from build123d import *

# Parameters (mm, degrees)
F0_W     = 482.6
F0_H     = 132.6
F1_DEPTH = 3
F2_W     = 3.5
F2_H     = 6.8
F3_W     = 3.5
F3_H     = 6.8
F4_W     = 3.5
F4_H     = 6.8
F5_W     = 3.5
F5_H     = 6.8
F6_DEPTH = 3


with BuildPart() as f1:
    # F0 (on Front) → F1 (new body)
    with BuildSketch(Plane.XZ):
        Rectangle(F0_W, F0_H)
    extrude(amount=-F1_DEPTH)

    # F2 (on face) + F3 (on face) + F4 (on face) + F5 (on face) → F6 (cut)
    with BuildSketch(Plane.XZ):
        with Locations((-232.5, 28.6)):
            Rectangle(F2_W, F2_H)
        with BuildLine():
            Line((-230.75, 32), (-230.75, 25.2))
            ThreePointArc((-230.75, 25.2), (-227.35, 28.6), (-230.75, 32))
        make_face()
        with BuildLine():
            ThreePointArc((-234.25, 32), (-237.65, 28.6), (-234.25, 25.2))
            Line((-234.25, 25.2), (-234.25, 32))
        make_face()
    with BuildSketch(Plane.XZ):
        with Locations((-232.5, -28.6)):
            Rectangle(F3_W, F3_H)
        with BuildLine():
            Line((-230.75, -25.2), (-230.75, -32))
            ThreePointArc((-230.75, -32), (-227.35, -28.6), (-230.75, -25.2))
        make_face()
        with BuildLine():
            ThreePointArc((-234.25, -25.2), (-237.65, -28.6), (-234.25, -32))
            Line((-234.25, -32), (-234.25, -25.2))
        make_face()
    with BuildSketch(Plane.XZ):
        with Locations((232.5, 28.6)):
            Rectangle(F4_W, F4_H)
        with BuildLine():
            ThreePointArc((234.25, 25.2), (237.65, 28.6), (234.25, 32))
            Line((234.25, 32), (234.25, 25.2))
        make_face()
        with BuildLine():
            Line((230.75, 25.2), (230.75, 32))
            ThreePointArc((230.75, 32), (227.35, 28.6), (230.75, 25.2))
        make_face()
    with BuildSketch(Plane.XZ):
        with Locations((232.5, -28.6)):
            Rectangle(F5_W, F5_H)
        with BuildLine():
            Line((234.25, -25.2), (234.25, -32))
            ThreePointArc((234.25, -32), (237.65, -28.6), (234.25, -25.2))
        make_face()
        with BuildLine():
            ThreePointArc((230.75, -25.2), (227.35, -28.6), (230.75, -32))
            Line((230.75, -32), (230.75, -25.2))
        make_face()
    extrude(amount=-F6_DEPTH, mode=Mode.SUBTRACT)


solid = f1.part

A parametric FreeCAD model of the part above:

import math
import FreeCAD as App
import Part
import Sketcher

V = App.Vector


def add_polygon(sketch, points):
    """Adds a closed chain of lines whose ends are joined by coincident constraints."""
    first, n = sketch.GeometryCount, len(points)
    for a, b in zip(points, points[1:] + points[:1]):
        sketch.addGeometry(Part.LineSegment(App.Vector(*a, 0), App.Vector(*b, 0)), False)
    for i in range(n):
        sketch.addConstraint(Sketcher.Constraint("Coincident", first + i, 2, first + (i + 1) % n, 1))

doc = App.newDocument("Part")
params = doc.addObject("Spreadsheet::Sheet", "Params")
for row, (alias, value) in enumerate([
    ("sketch1_width", "482.6 mm"),
    ("sketch1_height", "132.6 mm"),
    ("pad1_length", "3 mm"),
    ("sketch2_radius", "3.4 mm"),
    ("sketch2_width", "3.5 mm"),
    ("pocket1_length", "3 mm"),
], start=1):
    params.set(f"A{row}", alias)
    params.set(f"B{row}", "=" + value)
    params.setAlias(f"B{row}", alias)

body = doc.addObject("PartDesign::Body", "Body")

# Sketch on XZ plane
sketch1 = body.newObject("Sketcher::SketchObject", "Sketch")
sketch1.AttachmentSupport = (doc.getObject("XZ_Plane"), [""])
sketch1.MapMode = "FlatFace"
add_polygon(sketch1, [(-241.3, 66.3), (-241.3, -66.3), (241.3, -66.3), (241.3, 66.3)])  # lines 0-3
sketch1.addConstraint([
    Sketcher.Constraint("Vertical", 0),
    Sketcher.Constraint("Horizontal", 1),
    Sketcher.Constraint("Vertical", 2),
    Sketcher.Constraint("Horizontal", 3),
    Sketcher.Constraint("Symmetric", 0, 2, 2, 2, -1, 1),
    Sketcher.Constraint("DistanceX", 1, 1, 1, 2, 482.6),
    Sketcher.Constraint("DistanceY", 0, 2, 0, 1, 132.6),
])
sketch1.setExpression("Constraints[9]", "Params.sketch1_width")
sketch1.setExpression("Constraints[10]", "Params.sketch1_height")
pad1 = body.newObject("PartDesign::Pad", "Pad")
pad1.Profile = sketch1
pad1.setExpression("Length", "Params.pad1_length")
pad1.Reversed = True

# Sketch on XZ plane
sketch2 = body.newObject("Sketcher::SketchObject", "Sketch001")
sketch2.AttachmentSupport = (doc.getObject("XZ_Plane"), [""])
sketch2.MapMode = "FlatFace"
sketch2.addGeometry([
    Part.LineSegment(V(-234.25, 25.2, 0), V(-230.75, 25.2, 0)),  # 0
    Part.ArcOfCircle(Part.Circle(V(-230.75, 28.6, 0), V(0, 0, 1), 3.4), math.radians(-90), math.radians(90)),  # 1
    Part.LineSegment(V(-230.75, 32, 0), V(-234.25, 32, 0)),  # 2
    Part.ArcOfCircle(Part.Circle(V(-234.25, 28.6, 0), V(0, 0, 1), 3.4), math.radians(90), math.radians(270)),  # 3
    Part.LineSegment(V(-234.25, -32, 0), V(-230.75, -32, 0)),  # 4
    Part.ArcOfCircle(Part.Circle(V(-230.75, -28.6, 0), V(0, 0, 1), 3.4), math.radians(-90), math.radians(90)),  # 5
    Part.LineSegment(V(-230.75, -25.2, 0), V(-234.25, -25.2, 0)),  # 6
    Part.ArcOfCircle(Part.Circle(V(-234.25, -28.6, 0), V(0, 0, 1), 3.4), math.radians(90), math.radians(270)),  # 7
    Part.LineSegment(V(230.75, 25.2, 0), V(234.25, 25.2, 0)),  # 8
    Part.ArcOfCircle(Part.Circle(V(234.25, 28.6, 0), V(0, 0, 1), 3.4), math.radians(-90), math.radians(90)),  # 9
    Part.LineSegment(V(234.25, 32, 0), V(230.75, 32, 0)),  # 10
    Part.ArcOfCircle(Part.Circle(V(230.75, 28.6, 0), V(0, 0, 1), 3.4), math.radians(90), math.radians(270)),  # 11
    Part.LineSegment(V(230.75, -32, 0), V(234.25, -32, 0)),  # 12
    Part.ArcOfCircle(Part.Circle(V(234.25, -28.6, 0), V(0, 0, 1), 3.4), math.radians(-90), math.radians(90)),  # 13
    Part.LineSegment(V(234.25, -25.2, 0), V(230.75, -25.2, 0)),  # 14
    Part.ArcOfCircle(Part.Circle(V(230.75, -28.6, 0), V(0, 0, 1), 3.4), math.radians(90), math.radians(270)),  # 15
], False)
sketch2.addConstraint([
    Sketcher.Constraint("Tangent", 0, 2, 1, 1),
    Sketcher.Constraint("Tangent", 1, 2, 2, 1),
    Sketcher.Constraint("Tangent", 2, 2, 3, 1),
    Sketcher.Constraint("Tangent", 3, 2, 0, 1),
    Sketcher.Constraint("Tangent", 4, 2, 5, 1),
    Sketcher.Constraint("Tangent", 5, 2, 6, 1),
    Sketcher.Constraint("Tangent", 6, 2, 7, 1),
    Sketcher.Constraint("Tangent", 7, 2, 4, 1),
    Sketcher.Constraint("Tangent", 8, 2, 9, 1),
    Sketcher.Constraint("Tangent", 9, 2, 10, 1),
    Sketcher.Constraint("Tangent", 10, 2, 11, 1),
    Sketcher.Constraint("Tangent", 11, 2, 8, 1),
    Sketcher.Constraint("Tangent", 12, 2, 13, 1),
    Sketcher.Constraint("Tangent", 13, 2, 14, 1),
    Sketcher.Constraint("Tangent", 14, 2, 15, 1),
    Sketcher.Constraint("Tangent", 15, 2, 12, 1),
    Sketcher.Constraint("Horizontal", 0),
    Sketcher.Constraint("Horizontal", 2),
    Sketcher.Constraint("Horizontal", 4),
    Sketcher.Constraint("Horizontal", 6),
    Sketcher.Constraint("Horizontal", 8),
    Sketcher.Constraint("Horizontal", 10),
    Sketcher.Constraint("Horizontal", 12),
    Sketcher.Constraint("Horizontal", 14),
    Sketcher.Constraint("Equal", 3, 5),
    Sketcher.Constraint("Equal", 7, 9),
    Sketcher.Constraint("Equal", 11, 13),
    Sketcher.Constraint("Symmetric", 7, 3, 9, 3, -1, 1),
    Sketcher.Constraint("Symmetric", 3, 3, 13, 3, -1, 1),
    Sketcher.Constraint("Symmetric", 3, 3, 9, 3, -2),
    Sketcher.Constraint("Vertical", 1, 3, 5, 3),
    Sketcher.Constraint("Vertical", 11, 3, 15, 3),
    Sketcher.Constraint("Equal", 6, 8),
    Sketcher.Constraint("Radius", 1, 3.4),
    Sketcher.Constraint("DistanceX", 0, 1, 0, 2, 3.5),
    Sketcher.Constraint("DistanceY", -1, 1, 1, 2, 32.0),
    Sketcher.Constraint("DistanceX", 1, 3, 9, 3, 465.0),
])
sketch2.setExpression("Constraints[33]", "Params.sketch2_radius")
sketch2.setExpression("Constraints[34]", "Params.sketch2_width")
pocket1 = body.newObject("PartDesign::Pocket", "Pocket")
pocket1.Profile = sketch2
pocket1.setExpression("Length", "Params.pocket1_length")

doc.recompute()
